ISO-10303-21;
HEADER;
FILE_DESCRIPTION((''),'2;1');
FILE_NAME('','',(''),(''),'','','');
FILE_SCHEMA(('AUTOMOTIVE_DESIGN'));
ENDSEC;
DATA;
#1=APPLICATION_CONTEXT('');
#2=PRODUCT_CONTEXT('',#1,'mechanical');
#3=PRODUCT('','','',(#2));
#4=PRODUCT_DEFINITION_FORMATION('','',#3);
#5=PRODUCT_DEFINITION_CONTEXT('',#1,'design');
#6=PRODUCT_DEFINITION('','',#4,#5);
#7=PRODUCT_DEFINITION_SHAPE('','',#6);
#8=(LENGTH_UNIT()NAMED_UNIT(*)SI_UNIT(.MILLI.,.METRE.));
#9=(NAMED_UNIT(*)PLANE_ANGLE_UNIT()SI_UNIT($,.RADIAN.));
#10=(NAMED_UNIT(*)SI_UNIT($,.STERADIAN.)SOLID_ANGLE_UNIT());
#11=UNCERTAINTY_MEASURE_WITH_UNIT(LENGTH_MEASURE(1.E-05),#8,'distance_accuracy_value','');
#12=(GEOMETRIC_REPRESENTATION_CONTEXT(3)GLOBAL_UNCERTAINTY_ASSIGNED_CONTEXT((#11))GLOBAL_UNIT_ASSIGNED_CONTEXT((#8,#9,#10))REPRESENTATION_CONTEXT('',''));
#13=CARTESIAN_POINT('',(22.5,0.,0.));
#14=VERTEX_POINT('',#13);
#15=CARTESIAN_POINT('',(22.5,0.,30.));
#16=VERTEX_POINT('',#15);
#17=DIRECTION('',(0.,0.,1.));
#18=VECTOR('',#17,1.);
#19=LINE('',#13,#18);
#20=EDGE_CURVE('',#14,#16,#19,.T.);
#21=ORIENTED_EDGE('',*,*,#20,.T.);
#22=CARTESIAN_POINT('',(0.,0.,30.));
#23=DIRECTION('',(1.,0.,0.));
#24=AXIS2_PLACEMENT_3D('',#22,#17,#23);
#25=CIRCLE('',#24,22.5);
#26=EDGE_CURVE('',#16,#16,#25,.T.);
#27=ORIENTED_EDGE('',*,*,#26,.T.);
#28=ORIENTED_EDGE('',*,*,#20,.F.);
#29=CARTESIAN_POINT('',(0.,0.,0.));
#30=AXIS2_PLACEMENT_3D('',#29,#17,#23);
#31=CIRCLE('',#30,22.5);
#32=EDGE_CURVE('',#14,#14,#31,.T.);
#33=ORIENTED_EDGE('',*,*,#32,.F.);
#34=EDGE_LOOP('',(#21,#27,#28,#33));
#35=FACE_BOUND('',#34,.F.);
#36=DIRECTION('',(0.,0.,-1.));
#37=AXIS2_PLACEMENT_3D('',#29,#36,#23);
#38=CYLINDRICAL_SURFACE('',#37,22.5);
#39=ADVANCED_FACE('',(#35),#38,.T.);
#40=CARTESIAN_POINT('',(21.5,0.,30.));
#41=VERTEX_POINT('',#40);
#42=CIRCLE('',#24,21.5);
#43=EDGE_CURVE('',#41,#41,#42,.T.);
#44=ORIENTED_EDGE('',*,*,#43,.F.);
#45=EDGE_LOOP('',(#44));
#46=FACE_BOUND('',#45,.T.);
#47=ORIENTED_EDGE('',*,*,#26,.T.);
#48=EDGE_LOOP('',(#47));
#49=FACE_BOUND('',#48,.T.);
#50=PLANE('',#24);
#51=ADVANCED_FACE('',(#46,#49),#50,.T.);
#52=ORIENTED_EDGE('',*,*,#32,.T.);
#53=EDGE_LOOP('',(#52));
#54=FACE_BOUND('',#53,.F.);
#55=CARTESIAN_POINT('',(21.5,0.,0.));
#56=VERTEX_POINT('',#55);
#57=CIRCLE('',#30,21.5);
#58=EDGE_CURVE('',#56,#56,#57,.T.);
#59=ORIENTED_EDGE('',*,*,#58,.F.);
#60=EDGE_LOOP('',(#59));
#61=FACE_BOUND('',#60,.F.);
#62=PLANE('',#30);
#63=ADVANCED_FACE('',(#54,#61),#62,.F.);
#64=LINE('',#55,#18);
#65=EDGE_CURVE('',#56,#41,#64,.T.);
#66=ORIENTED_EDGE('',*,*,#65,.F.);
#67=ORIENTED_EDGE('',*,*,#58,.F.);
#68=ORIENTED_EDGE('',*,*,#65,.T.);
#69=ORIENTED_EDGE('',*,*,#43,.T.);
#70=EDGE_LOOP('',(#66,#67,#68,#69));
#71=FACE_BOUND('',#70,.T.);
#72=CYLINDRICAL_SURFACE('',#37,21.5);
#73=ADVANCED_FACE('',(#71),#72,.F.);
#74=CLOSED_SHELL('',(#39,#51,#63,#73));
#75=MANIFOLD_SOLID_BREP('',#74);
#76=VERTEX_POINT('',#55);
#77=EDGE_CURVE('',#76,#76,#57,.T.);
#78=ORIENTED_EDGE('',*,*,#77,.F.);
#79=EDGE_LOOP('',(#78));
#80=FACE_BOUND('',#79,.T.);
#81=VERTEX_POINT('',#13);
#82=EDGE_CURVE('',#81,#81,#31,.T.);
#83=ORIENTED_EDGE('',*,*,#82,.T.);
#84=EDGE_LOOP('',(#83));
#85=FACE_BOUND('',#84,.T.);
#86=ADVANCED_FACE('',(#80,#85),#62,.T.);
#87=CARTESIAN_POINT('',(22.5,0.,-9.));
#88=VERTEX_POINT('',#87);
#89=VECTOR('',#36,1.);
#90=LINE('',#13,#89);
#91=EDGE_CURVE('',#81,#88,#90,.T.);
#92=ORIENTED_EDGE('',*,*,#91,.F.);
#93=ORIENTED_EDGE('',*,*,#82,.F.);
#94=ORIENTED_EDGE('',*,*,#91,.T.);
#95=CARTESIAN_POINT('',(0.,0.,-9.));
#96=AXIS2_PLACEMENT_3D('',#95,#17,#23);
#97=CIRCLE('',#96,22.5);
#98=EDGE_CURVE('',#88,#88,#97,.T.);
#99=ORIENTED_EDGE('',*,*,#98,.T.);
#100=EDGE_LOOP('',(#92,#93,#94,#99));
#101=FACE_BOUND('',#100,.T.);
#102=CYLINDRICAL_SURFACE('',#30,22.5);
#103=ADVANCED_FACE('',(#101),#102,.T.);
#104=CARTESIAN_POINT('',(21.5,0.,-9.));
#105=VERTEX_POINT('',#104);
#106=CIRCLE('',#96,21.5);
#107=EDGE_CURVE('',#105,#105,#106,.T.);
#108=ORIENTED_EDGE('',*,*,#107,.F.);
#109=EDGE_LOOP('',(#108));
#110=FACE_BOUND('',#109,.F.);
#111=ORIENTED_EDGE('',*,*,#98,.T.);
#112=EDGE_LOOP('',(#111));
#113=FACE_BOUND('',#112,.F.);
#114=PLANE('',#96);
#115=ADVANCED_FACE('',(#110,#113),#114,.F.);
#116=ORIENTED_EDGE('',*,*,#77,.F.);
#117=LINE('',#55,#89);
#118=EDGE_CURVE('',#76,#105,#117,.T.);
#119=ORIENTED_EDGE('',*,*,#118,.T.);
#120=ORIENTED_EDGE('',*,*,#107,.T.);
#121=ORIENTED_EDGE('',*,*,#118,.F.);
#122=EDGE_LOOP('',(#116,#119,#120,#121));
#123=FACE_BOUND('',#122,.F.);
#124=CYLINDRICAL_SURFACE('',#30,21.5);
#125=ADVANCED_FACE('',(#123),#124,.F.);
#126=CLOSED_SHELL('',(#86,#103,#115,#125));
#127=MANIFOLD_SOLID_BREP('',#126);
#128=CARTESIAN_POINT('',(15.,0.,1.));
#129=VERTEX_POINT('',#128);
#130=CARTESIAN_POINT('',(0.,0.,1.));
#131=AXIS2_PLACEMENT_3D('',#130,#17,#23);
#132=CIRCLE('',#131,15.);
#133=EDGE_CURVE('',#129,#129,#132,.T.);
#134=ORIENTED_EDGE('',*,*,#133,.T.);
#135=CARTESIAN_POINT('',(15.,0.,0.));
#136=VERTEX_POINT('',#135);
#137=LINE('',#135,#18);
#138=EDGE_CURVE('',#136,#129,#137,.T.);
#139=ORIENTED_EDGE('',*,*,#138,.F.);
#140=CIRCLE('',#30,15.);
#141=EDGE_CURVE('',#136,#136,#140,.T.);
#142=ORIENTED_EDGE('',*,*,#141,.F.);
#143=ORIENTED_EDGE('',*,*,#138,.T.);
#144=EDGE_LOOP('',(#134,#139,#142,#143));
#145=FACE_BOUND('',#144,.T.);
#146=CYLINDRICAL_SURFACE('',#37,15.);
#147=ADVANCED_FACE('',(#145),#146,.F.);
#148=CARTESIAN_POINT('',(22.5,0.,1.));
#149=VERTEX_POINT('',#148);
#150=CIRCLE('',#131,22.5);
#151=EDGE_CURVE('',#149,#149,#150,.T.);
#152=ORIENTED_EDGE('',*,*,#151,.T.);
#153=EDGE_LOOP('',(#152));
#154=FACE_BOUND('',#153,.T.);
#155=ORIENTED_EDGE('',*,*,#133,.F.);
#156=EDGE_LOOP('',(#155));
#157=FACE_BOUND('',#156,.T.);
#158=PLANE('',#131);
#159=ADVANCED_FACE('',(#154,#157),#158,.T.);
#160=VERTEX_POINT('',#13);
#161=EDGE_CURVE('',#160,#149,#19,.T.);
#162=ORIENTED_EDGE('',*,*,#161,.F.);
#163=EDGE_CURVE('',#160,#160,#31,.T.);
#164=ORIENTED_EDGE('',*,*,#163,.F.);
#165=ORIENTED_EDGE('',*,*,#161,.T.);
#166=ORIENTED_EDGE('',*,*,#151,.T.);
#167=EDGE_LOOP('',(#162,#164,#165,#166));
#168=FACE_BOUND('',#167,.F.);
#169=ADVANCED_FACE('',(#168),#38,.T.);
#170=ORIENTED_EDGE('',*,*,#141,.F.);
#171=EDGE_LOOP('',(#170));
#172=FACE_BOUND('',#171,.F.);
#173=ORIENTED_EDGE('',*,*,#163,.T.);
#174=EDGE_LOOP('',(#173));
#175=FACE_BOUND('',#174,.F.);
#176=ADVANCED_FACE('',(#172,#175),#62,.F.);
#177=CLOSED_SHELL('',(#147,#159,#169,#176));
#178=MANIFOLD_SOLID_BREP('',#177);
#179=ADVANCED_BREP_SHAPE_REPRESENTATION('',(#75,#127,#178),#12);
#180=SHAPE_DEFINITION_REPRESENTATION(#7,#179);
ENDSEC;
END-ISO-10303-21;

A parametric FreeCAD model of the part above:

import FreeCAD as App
import Part
import Sketcher

V = App.Vector

doc = App.newDocument("Part")
params = doc.addObject("Spreadsheet::Sheet", "Params")
for row, (alias, value) in enumerate([
    ("sketch1_diameter", "45 mm"),
    ("sketch1_diameter2", "43 mm"),
    ("pad1_length", "9 mm"),
    ("sketch2_diameter", "45 mm"),
    ("sketch2_diameter2", "30 mm"),
    ("pad2_length", "1 mm"),
    ("sketch3_diameter", "45 mm"),
    ("sketch3_diameter2", "43 mm"),
    ("pad3_length", "30 mm"),
], start=1):
    params.set(f"A{row}", alias)
    params.set(f"B{row}", "=" + value)
    params.setAlias(f"B{row}", alias)

body = doc.addObject("PartDesign::Body", "Body")

# Sketch on XY plane
sketch1 = body.newObject("Sketcher::SketchObject", "Sketch")
sketch1.AttachmentSupport = (doc.getObject("XY_Plane"), [""])
sketch1.MapMode = "FlatFace"
sketch1.addGeometry([
    Part.Circle(V(0, 0, 0), V(0, 0, 1), 22),
    Part.Circle(V(0, 0, 0), V(0, 0, 1), 22),
], False)
sketch1.addConstraint([
    Sketcher.Constraint("Coincident", 0, 3, -1, 1),
    Sketcher.Constraint("Coincident", 1, 3, -1, 1),
    Sketcher.Constraint("Diameter", 0, 45.0),
    Sketcher.Constraint("Diameter", 1, 43.0),
])
sketch1.setExpression("Constraints[2]", "Params.sketch1_diameter")
sketch1.setExpression("Constraints[3]", "Params.sketch1_diameter2")
pad1 = body.newObject("PartDesign::Pad", "Pad")
pad1.Profile = sketch1
pad1.setExpression("Length", "Params.pad1_length")
pad1.Reversed = True
body2 = doc.addObject("PartDesign::Body", "Body001")

# Sketch on XY plane
sketch2 = body2.newObject("Sketcher::SketchObject", "Sketch001")
sketch2.AttachmentSupport = (doc.getObject("XY_Plane001"), [""])
sketch2.MapMode = "FlatFace"
sketch2.addGeometry([
    Part.Circle(V(0, 0, 0), V(0, 0, 1), 22),
    Part.Circle(V(0, 0, 0), V(0, 0, 1), 15),
], False)
sketch2.addConstraint([
    Sketcher.Constraint("Coincident", 0, 3, -1, 1),
    Sketcher.Constraint("Coincident", 1, 3, -1, 1),
    Sketcher.Constraint("Diameter", 0, 45.0),
    Sketcher.Constraint("Diameter", 1, 30.0),
])
sketch2.setExpression("Constraints[2]", "Params.sketch2_diameter")
sketch2.setExpression("Constraints[3]", "Params.sketch2_diameter2")
pad2 = body2.newObject("PartDesign::Pad", "Pad001")
pad2.Profile = sketch2
pad2.setExpression("Length", "Params.pad2_length")
body3 = doc.addObject("PartDesign::Body", "Body002")

# Sketch on XY plane
sketch3 = body3.newObject("Sketcher::SketchObject", "Sketch002")
sketch3.AttachmentSupport = (doc.getObject("XY_Plane002"), [""])
sketch3.MapMode = "FlatFace"
sketch3.addGeometry([
    Part.Circle(V(0, 0, 0), V(0, 0, 1), 22),
    Part.Circle(V(0, 0, 0), V(0, 0, 1), 22),
], False)
sketch3.addConstraint([
    Sketcher.Constraint("Coincident", 0, 3, -1, 1),
    Sketcher.Constraint("Coincident", 1, 3, -1, 1),
    Sketcher.Constraint("Diameter", 0, 45.0),
    Sketcher.Constraint("Diameter", 1, 43.0),
])
sketch3.setExpression("Constraints[2]", "Params.sketch3_diameter")
sketch3.setExpression("Constraints[3]", "Params.sketch3_diameter2")
pad3 = body3.newObject("PartDesign::Pad", "Pad002")
pad3.Profile = sketch3
pad3.setExpression("Length", "Params.pad3_length")

doc.recompute()
